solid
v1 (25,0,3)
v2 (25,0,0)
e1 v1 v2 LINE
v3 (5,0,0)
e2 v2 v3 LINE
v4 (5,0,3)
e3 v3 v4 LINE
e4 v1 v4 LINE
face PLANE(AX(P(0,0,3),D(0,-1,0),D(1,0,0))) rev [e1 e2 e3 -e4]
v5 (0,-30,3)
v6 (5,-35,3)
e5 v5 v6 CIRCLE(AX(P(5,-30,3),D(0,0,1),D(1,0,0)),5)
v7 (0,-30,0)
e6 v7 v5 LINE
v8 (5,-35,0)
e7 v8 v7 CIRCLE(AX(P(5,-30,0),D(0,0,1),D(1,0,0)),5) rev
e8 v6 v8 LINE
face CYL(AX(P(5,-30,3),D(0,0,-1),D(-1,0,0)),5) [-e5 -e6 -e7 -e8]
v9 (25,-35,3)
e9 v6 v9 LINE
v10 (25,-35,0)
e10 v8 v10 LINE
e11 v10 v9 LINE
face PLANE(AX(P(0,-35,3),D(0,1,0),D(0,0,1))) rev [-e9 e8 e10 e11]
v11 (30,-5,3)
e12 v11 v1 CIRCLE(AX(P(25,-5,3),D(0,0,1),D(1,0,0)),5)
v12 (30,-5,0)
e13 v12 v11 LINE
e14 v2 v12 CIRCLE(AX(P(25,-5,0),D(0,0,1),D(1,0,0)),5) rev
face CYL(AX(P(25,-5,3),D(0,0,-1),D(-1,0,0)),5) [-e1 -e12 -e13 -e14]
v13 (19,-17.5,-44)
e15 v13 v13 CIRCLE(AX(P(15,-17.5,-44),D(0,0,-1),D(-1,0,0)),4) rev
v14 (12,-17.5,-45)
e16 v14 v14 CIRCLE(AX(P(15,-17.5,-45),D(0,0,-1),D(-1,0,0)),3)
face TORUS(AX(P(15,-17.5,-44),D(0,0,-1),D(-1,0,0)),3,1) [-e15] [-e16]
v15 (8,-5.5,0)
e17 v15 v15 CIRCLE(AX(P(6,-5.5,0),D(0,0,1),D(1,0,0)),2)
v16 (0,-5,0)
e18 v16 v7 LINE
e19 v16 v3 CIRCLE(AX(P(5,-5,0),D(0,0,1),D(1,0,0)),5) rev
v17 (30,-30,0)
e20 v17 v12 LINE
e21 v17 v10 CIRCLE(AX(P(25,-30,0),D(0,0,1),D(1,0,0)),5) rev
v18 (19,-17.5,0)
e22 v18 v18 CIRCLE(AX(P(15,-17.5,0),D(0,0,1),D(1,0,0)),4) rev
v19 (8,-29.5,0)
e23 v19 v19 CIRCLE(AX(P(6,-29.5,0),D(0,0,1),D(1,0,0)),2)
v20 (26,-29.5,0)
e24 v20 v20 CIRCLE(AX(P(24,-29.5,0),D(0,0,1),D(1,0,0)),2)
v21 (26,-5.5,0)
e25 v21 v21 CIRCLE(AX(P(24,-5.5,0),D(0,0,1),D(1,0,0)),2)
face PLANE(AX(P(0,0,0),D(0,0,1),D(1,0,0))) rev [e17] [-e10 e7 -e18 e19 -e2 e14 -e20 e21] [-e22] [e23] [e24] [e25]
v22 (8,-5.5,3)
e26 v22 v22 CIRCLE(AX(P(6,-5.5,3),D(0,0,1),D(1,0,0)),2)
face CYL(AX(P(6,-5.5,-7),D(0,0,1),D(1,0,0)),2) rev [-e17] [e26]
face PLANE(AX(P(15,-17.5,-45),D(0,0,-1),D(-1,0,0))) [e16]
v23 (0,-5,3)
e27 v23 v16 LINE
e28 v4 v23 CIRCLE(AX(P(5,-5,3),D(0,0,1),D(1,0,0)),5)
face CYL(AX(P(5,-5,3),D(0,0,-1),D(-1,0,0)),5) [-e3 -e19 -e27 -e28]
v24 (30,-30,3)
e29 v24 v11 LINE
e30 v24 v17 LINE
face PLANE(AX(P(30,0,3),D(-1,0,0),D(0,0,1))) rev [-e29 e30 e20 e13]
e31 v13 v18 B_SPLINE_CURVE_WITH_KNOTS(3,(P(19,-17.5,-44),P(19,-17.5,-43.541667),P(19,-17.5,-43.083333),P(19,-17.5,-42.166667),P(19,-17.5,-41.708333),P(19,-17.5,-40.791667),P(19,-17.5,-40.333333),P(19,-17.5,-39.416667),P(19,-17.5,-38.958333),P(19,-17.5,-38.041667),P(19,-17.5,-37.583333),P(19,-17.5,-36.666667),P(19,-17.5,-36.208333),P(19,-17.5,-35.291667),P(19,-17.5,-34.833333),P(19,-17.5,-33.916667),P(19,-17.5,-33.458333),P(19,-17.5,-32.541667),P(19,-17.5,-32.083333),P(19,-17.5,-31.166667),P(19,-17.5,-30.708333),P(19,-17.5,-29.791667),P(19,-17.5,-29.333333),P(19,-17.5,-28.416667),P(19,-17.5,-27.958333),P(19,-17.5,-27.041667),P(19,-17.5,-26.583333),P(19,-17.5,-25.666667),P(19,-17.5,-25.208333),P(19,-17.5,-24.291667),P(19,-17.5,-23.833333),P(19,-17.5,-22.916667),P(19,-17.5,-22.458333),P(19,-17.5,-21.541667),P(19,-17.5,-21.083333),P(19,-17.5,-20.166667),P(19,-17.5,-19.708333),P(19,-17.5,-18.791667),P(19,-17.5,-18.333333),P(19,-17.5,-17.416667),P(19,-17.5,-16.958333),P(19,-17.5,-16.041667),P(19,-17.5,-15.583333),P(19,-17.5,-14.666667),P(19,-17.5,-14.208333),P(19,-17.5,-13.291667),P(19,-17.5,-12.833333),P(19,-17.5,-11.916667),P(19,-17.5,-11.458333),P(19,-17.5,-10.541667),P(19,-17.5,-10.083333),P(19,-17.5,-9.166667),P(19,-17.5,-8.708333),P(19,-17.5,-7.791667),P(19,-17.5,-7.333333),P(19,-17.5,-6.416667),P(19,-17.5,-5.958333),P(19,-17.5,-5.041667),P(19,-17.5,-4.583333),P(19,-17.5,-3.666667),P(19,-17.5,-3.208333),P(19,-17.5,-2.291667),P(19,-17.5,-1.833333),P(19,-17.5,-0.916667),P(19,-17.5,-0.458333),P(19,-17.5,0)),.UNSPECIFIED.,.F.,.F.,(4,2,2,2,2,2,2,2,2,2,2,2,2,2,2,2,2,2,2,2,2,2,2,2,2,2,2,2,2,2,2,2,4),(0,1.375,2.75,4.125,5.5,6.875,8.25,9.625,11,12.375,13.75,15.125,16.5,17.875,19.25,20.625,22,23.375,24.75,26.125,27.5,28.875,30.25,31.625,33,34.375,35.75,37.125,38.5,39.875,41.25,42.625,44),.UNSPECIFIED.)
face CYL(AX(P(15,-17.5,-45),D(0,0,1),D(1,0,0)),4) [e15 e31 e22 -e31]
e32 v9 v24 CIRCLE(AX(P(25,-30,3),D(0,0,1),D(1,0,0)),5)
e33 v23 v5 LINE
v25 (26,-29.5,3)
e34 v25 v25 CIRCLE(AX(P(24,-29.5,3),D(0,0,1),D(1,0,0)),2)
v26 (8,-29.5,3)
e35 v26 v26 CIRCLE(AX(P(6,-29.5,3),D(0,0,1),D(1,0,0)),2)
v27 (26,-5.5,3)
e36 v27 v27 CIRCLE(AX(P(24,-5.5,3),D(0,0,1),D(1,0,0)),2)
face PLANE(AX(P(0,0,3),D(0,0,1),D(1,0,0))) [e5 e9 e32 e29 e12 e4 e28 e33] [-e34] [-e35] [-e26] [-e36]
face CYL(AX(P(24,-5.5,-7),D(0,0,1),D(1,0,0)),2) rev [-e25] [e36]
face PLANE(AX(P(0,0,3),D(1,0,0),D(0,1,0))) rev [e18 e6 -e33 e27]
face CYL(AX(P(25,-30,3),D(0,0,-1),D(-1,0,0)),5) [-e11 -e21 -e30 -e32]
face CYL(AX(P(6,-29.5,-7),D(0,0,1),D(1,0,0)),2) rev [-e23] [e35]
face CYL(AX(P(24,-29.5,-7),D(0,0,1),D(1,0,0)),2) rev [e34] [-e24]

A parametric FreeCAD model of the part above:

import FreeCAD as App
import Part
import Sketcher
Q = App.Units.Quantity


def edges_at(feature, points):
    """Names of the edges that pass closest to the given points."""
    edges = feature.Shape.Edges
    near = lambda p: min(range(len(edges)), key=lambda i: edges[i].distToShape(Part.Vertex(*p))[0])
    return sorted({f"Edge{near(p) + 1}" for p in points})


def add_polygon(sketch, points):
    """Adds a closed chain of lines whose ends are joined by coincident constraints."""
    first, n = sketch.GeometryCount, len(points)
    for a, b in zip(points, points[1:] + points[:1]):
        sketch.addGeometry(Part.LineSegment(App.Vector(*a, 0), App.Vector(*b, 0)), False)
    for i in range(n):
        sketch.addConstraint(Sketcher.Constraint("Coincident", first + i, 2, first + (i + 1) % n, 1))

doc = App.newDocument("Part")
params = doc.addObject("Spreadsheet::Sheet", "Params")
for row, (alias, value) in enumerate([
    ("sketch1_width", "30 mm"),
    ("sketch1_height", "35 mm"),
    ("pad1_length", "3 mm"),
    ("fillet_radius", "5 mm"),
    ("sketch2_diameter", "4 mm"),
    ("pocket1_length", "10 mm"),
    ("sketch3_diameter", "8 mm"),
    ("pad2_length", "45 mm"),
    ("fillet2_radius", "1 mm"),
], start=1):
    params.set(f"A{row}", alias)
    params.set(f"B{row}", "=" + value)
    params.setAlias(f"B{row}", alias)

body = doc.addObject("PartDesign::Body", "Body")

# Sketch on XY plane
sketch1 = body.newObject("Sketcher::SketchObject", "Sketch")
sketch1.AttachmentSupport = (doc.getObject("XY_Plane"), [""])
sketch1.MapMode = "FlatFace"
add_polygon(sketch1, [(0, 0), (0, -35), (30, -35), (30, 0)])  # lines 0-3
sketch1.addConstraint([
    Sketcher.Constraint("Vertical", 0),
    Sketcher.Constraint("Horizontal", 1),
    Sketcher.Constraint("Vertical", 2),
    Sketcher.Constraint("Horizontal", 3),
    Sketcher.Constraint("Coincident", 3, 2, -1, 1),
    Sketcher.Constraint("DistanceX", 1, 1, 1, 2, Q("30 mm")),
    Sketcher.Constraint("DistanceY", 0, 2, 0, 1, Q("35 mm")),
])
sketch1.setExpression("Constraints[9]", "Params.sketch1_width")
sketch1.setExpression("Constraints[10]", "Params.sketch1_height")
pad1 = body.newObject("PartDesign::Pad", "Pad")
pad1.Profile = sketch1
pad1.setExpression("Length", "Params.pad1_length")
doc.recompute()

fillet = body.newObject("PartDesign::Fillet", "Fillet")
fillet.Base = (pad1, edges_at(pad1, [
    (0, 0, 1.5),
    (30, 0, 1.5),
    (30, -35, 1.5),
    (0, -35, 1.5),
]))
fillet.setExpression("Radius", "Params.fillet_radius")

# Sketch on XY plane
sketch2 = body.newObject("Sketcher::SketchObject", "Sketch001")
sketch2.AttachmentSupport = (doc.getObject("XY_Plane"), [""])
sketch2.MapMode = "FlatFace"
sketch2.AttachmentOffset = App.Placement(App.Vector(0, 0, 3), App.Rotation())
sketch2.addGeometry([
    Part.Circle(App.Vector(6, -5.5, 0), App.Vector(0, 0, 1), 2),
    Part.Circle(App.Vector(24, -5.5, 0), App.Vector(0, 0, 1), 2),
    Part.Circle(App.Vector(6, -29.5, 0), App.Vector(0, 0, 1), 2),
    Part.Circle(App.Vector(24, -29.5, 0), App.Vector(0, 0, 1), 2),
], False)
sketch2.addConstraint([
    Sketcher.Constraint("Equal", 0, 1),
    Sketcher.Constraint("Equal", 1, 2),
    Sketcher.Constraint("Equal", 2, 3),
    Sketcher.Constraint("Horizontal", 0, 3, 1, 3),
    Sketcher.Constraint("Horizontal", 2, 3, 3, 3),
    Sketcher.Constraint("Vertical", 0, 3, 2, 3),
    Sketcher.Constraint("Vertical", 1, 3, 3, 3),
    Sketcher.Constraint("Diameter", 0, Q("4 mm")),
    Sketcher.Constraint("DistanceX", -1, 1, 0, 3, Q("6 mm")),
    Sketcher.Constraint("DistanceX", -1, 1, 1, 3, Q("24 mm")),
    Sketcher.Constraint("DistanceY", 2, 3, 0, 3, Q("24 mm")),
    Sketcher.Constraint("DistanceY", 0, 3, -1, 1, Q("5.5 mm")),
])
sketch2.setExpression("Constraints[7]", "Params.sketch2_diameter")
pocket1 = body.newObject("PartDesign::Pocket", "Pocket")
pocket1.Profile = sketch2
pocket1.setExpression("Length", "Params.pocket1_length")

# Sketch on XY plane
sketch3 = body.newObject("Sketcher::SketchObject", "Sketch002")
sketch3.AttachmentSupport = (doc.getObject("XY_Plane"), [""])
sketch3.MapMode = "FlatFace"
sketch3.addGeometry(Part.Circle(App.Vector(15, -17.5, 0), App.Vector(0, 0, 1), 4), False)
sketch3.addConstraint([
    Sketcher.Constraint("Diameter", 0, Q("8 mm")),
    Sketcher.Constraint("DistanceX", -1, 1, 0, 3, Q("15 mm")),
    Sketcher.Constraint("DistanceY", 0, 3, -1, 1, Q("17.5 mm")),
])
sketch3.setExpression("Constraints[0]", "Params.sketch3_diameter")
pad2 = body.newObject("PartDesign::Pad", "Pad001")
pad2.Profile = sketch3
pad2.setExpression("Length", "Params.pad2_length")
pad2.Reversed = True
doc.recompute()

fillet2 = body.newObject("PartDesign::Fillet", "Fillet001")
fillet2.Base = (pad2, edges_at(pad2, [(11, -17.5, -45)]))
fillet2.setExpression("Radius", "Params.fillet2_radius")

doc.recompute()
